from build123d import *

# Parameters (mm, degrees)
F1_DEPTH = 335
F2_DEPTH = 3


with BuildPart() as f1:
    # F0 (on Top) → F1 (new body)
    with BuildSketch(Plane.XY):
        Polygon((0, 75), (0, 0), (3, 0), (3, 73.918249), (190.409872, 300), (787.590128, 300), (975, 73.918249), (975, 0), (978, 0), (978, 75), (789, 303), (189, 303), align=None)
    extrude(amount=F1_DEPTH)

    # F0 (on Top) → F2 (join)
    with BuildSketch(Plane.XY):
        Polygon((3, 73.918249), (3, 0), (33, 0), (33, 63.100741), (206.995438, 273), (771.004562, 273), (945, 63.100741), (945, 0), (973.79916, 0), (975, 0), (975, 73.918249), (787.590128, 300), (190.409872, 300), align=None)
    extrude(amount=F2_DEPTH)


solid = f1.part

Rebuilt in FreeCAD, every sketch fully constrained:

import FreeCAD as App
import Part
import Sketcher

V = App.Vector

doc = App.newDocument("Part")
body = doc.addObject("PartDesign::Body", "Body")

sketch1 = body.newObject("Sketcher::SketchObject", "Sketch")
sketch1.AttachmentSupport = (doc.getObject("XY_Plane"), [""])
sketch1.MapMode = "FlatFace"
sketch1.addGeometry(Part.LineSegment(V(0, 75, 0), V(0, 0, 0)), False)
sketch1.addGeometry(Part.LineSegment(V(0, 0, 0), V(3, 0, 0)), False)
sketch1.addGeometry(Part.LineSegment(V(3, 0, 0), V(3, 73.9, 0)), False)
sketch1.addGeometry(Part.LineSegment(V(3, 73.9, 0), V(190.4, 300, 0)), False)
sketch1.addGeometry(Part.LineSegment(V(190.4, 300, 0), V(787.6, 300, 0)), False)
sketch1.addGeometry(Part.LineSegment(V(787.6, 300, 0), V(975, 73.9, 0)), False)
sketch1.addGeometry(Part.LineSegment(V(975, 73.9, 0), V(975, 0, 0)), False)
sketch1.addGeometry(Part.LineSegment(V(975, 0, 0), V(978, 0, 0)), False)
sketch1.addGeometry(Part.LineSegment(V(978, 0, 0), V(978, 75, 0)), False)
sketch1.addGeometry(Part.LineSegment(V(978, 75, 0), V(789, 303, 0)), False)
sketch1.addGeometry(Part.LineSegment(V(789, 303, 0), V(189, 303, 0)), False)
sketch1.addGeometry(Part.LineSegment(V(189, 303, 0), V(0, 75, 0)), False)
sketch1.addConstraint(Sketcher.Constraint("Coincident", 0, 2, 1, 1))
sketch1.addConstraint(Sketcher.Constraint("Coincident", 1, 2, 2, 1))
sketch1.addConstraint(Sketcher.Constraint("Coincident", 2, 2, 3, 1))
sketch1.addConstraint(Sketcher.Constraint("Coincident", 3, 2, 4, 1))
sketch1.addConstraint(Sketcher.Constraint("Coincident", 4, 2, 5, 1))
sketch1.addConstraint(Sketcher.Constraint("Coincident", 5, 2, 6, 1))
sketch1.addConstraint(Sketcher.Constraint("Coincident", 6, 2, 7, 1))
sketch1.addConstraint(Sketcher.Constraint("Coincident", 7, 2, 8, 1))
sketch1.addConstraint(Sketcher.Constraint("Coincident", 8, 2, 9, 1))
sketch1.addConstraint(Sketcher.Constraint("Coincident", 9, 2, 10, 1))
sketch1.addConstraint(Sketcher.Constraint("Coincident", 10, 2, 11, 1))
sketch1.addConstraint(Sketcher.Constraint("Coincident", 11, 2, 0, 1))
sketch1.addConstraint(Sketcher.Constraint("Vertical", 0))
sketch1.addConstraint(Sketcher.Constraint("Horizontal", 1))
sketch1.addConstraint(Sketcher.Constraint("Vertical", 2))
sketch1.addConstraint(Sketcher.Constraint("Horizontal", 4))
sketch1.addConstraint(Sketcher.Constraint("Vertical", 6))
sketch1.addConstraint(Sketcher.Constraint("Horizontal", 7))
sketch1.addConstraint(Sketcher.Constraint("Vertical", 8))
sketch1.addConstraint(Sketcher.Constraint("Horizontal", 10))
sketch1.addConstraint(Sketcher.Constraint("Coincident", 0, 2, -1, 1))
sketch1.addConstraint(Sketcher.Constraint("PointOnObject", 6, 2, -1))
sketch1.addConstraint(Sketcher.Constraint("Parallel", 5, 9))
sketch1.addConstraint(Sketcher.Constraint("Parallel", 3, 11))
sketch1.addConstraint(Sketcher.Constraint("Horizontal", 2, 2, 5, 2))
sketch1.addConstraint(Sketcher.Constraint("Horizontal", 8, 2, 11, 2))
sketch1.addConstraint(Sketcher.Constraint("Equal", 1, 7))
sketch1.addConstraint(Sketcher.Constraint("Equal", 3, 5))
sketch1.addConstraint(Sketcher.Constraint("DistanceX", 1, 1, 1, 2, 3.0))
sketch1.addConstraint(Sketcher.Constraint("DistanceX", 10, 2, 10, 1, 600.0))
sketch1.addConstraint(Sketcher.Constraint("DistanceY", 0, 2, 0, 1, 75.0))
sketch1.addConstraint(Sketcher.Constraint("DistanceY", -1, 1, 3, 2, 300.0))
sketch1.addConstraint(Sketcher.Constraint("DistanceX", -1, 1, 5, 2, 975.0))
sketch1.addConstraint(Sketcher.Constraint("DistanceY", -1, 1, 9, 2, 303.0))
sketch1.addConstraint(Sketcher.Constraint("DistanceY", 2, 1, 2, 2, 73.918249))
pad1 = body.newObject("PartDesign::Pad", "Pad")
pad1.Profile = sketch1
pad1.Length = 335

sketch2 = body.newObject("Sketcher::SketchObject", "Sketch001")
sketch2.AttachmentSupport = (doc.getObject("XY_Plane"), [""])
sketch2.MapMode = "FlatFace"
sketch2.addGeometry(Part.LineSegment(V(3, 74, 0), V(3, 0, 0)), False)
sketch2.addGeometry(Part.LineSegment(V(3, 0, 0), V(33, 0, 0)), False)
sketch2.addGeometry(Part.LineSegment(V(33, 0, 0), V(33, 63, 0)), False)
sketch2.addGeometry(Part.LineSegment(V(33, 63, 0), V(207, 273, 0)), False)
sketch2.addGeometry(Part.LineSegment(V(207, 273, 0), V(771, 273, 0)), False)
sketch2.addGeometry(Part.LineSegment(V(771, 273, 0), V(945, 63, 0)), False)
sketch2.addGeometry(Part.LineSegment(V(945, 63, 0), V(945, 0, 0)), False)
sketch2.addGeometry(Part.LineSegment(V(945, 0, 0), V(975, 0, 0)), False)
sketch2.addGeometry(Part.LineSegment(V(975, 0, 0), V(975, 74, 0)), False)
sketch2.addGeometry(Part.LineSegment(V(975, 74, 0), V(788, 300, 0)), False)
sketch2.addGeometry(Part.LineSegment(V(788, 300, 0), V(190, 300, 0)), False)
sketch2.addGeometry(Part.LineSegment(V(190, 300, 0), V(3, 74, 0)), False)
sketch2.addConstraint(Sketcher.Constraint("Coincident", 0, 2, 1, 1))
sketch2.addConstraint(Sketcher.Constraint("Coincident", 1, 2, 2, 1))
sketch2.addConstraint(Sketcher.Constraint("Coincident", 2, 2, 3, 1))
sketch2.addConstraint(Sketcher.Constraint("Coincident", 3, 2, 4, 1))
sketch2.addConstraint(Sketcher.Constraint("Coincident", 4, 2, 5, 1))
sketch2.addConstraint(Sketcher.Constraint("Coincident", 5, 2, 6, 1))
sketch2.addConstraint(Sketcher.Constraint("Coincident", 6, 2, 7, 1))
sketch2.addConstraint(Sketcher.Constraint("Coincident", 7, 2, 8, 1))
sketch2.addConstraint(Sketcher.Constraint("Coincident", 8, 2, 9, 1))
sketch2.addConstraint(Sketcher.Constraint("Coincident", 9, 2, 10, 1))
sketch2.addConstraint(Sketcher.Constraint("Coincident", 10, 2, 11, 1))
sketch2.addConstraint(Sketcher.Constraint("Coincident", 11, 2, 0, 1))
sketch2.addConstraint(Sketcher.Constraint("Vertical", 0))
sketch2.addConstraint(Sketcher.Constraint("Horizontal", 1))
sketch2.addConstraint(Sketcher.Constraint("Vertical", 2))
sketch2.addConstraint(Sketcher.Constraint("Horizontal", 4))
sketch2.addConstraint(Sketcher.Constraint("Vertical", 6))
sketch2.addConstraint(Sketcher.Constraint("Horizontal", 7))
sketch2.addConstraint(Sketcher.Constraint("Vertical", 8))
sketch2.addConstraint(Sketcher.Constraint("Horizontal", 10))
sketch2.addConstraint(Sketcher.Constraint("PointOnObject", 0, 2, -1))
sketch2.addConstraint(Sketcher.Constraint("PointOnObject", 6, 2, -1))
sketch2.addConstraint(Sketcher.Constraint("Parallel", 5, 9))
sketch2.addConstraint(Sketcher.Constraint("Parallel", 3, 11))
sketch2.addConstraint(Sketcher.Constraint("Horizontal", 2, 2, 5, 2))
sketch2.addConstraint(Sketcher.Constraint("Horizontal", 8, 2, 11, 2))
sketch2.addConstraint(Sketcher.Constraint("Equal", 1, 7))
sketch2.addConstraint(Sketcher.Constraint("Equal", 3, 5))
sketch2.addConstraint(Sketcher.Constraint("DistanceX", 1, 1, 1, 2, 30.0))
sketch2.addConstraint(Sketcher.Constraint("DistanceX", -1, 1, 0, 2, 3.0))
sketch2.addConstraint(Sketcher.Constraint("DistanceY", -1, 1, 3, 2, 273.0))
sketch2.addConstraint(Sketcher.Constraint("DistanceX", -1, 1, 5, 2, 945.0))
sketch2.addConstraint(Sketcher.Constraint("DistanceY", -1, 1, 9, 2, 300.0))
sketch2.addConstraint(Sketcher.Constraint("DistanceY", 0, 2, 0, 1, 73.918249))
sketch2.addConstraint(Sketcher.Constraint("DistanceY", 2, 1, 2, 2, 63.100741))
sketch2.addConstraint(Sketcher.Constraint("Distance", 3, 272.63916))
pad2 = body.newObject("PartDesign::Pad", "Pad001")
pad2.Profile = sketch2
pad2.Length = 3

doc.recompute()
